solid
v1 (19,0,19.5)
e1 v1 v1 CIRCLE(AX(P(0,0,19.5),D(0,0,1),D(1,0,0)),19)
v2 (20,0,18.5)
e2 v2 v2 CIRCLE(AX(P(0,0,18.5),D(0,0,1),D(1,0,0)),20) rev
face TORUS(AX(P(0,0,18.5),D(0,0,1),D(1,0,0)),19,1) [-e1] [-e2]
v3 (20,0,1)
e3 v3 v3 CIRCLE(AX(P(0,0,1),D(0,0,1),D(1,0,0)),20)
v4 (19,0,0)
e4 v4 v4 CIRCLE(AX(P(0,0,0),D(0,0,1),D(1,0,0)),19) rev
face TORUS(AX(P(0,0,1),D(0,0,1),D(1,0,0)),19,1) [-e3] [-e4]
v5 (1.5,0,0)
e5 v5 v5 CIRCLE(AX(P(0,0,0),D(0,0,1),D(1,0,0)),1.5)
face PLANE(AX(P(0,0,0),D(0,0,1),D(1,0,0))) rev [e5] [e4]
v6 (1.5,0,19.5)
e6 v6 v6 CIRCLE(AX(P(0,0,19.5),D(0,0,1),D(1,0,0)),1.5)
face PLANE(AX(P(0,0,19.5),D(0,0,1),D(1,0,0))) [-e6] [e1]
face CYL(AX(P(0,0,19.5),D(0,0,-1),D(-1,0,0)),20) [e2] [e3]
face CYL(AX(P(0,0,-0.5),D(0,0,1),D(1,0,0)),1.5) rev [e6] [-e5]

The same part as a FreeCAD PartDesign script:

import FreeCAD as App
import Part
import Sketcher
from FreeCAD import Vector
Q = App.Units.Quantity


def edges_at(feature, points):
    """Names of the edges that pass closest to the given points."""
    edges = feature.Shape.Edges
    near = lambda p: min(range(len(edges)), key=lambda i: edges[i].distToShape(Part.Vertex(*p))[0])
    return sorted({f"Edge{near(p) + 1}" for p in points})

doc = App.newDocument("Part")
body = doc.addObject("PartDesign::Body", "Body")

# Sketch on XY plane
sketch1 = doc.addObject("Sketcher::SketchObject", "Sketch")
body.addObject(sketch1)
sketch1.AttachmentSupport = (doc.XY_Plane, [""])
sketch1.MapMode = "FlatFace"
sketch1.addGeometry(Part.Circle(Vector(0, 0, 0), Vector(0, 0, 1), 20), False)
sketch1.addConstraint([
    Sketcher.Constraint("Coincident", 0, 3, -1, 1),
    Sketcher.Constraint("Diameter", 0, Q("40 mm")),
])
pad1 = doc.addObject("PartDesign::Pad", "Pad")
body.addObject(pad1)
pad1.Profile = sketch1
pad1.Length = 19.5
doc.recompute()

fillet = doc.addObject("PartDesign::Fillet", "Fillet")
body.addObject(fillet)
fillet.Base = (pad1, edges_at(pad1, [(-20, 0, 0), (-20, 0, 19.5)]))
fillet.Radius = 1

# Sketch on XY plane
sketch2 = doc.addObject("Sketcher::SketchObject", "Sketch001")
body.addObject(sketch2)
sketch2.AttachmentSupport = (doc.XY_Plane, [""])
sketch2.MapMode = "FlatFace"
sketch2.AttachmentOffset = App.Placement(Vector(0, 0, 19.5), App.Rotation())
sketch2.addGeometry(Part.Circle(Vector(0, 0, 0), Vector(0, 0, 1), 1.5), False)
sketch2.addConstraint([
    Sketcher.Constraint("Coincident", 0, 3, -1, 1),
    Sketcher.Constraint("Diameter", 0, Q("3 mm")),
])
pocket1 = doc.addObject("PartDesign::Pocket", "Pocket")
body.addObject(pocket1)
pocket1.Profile = sketch2
pocket1.Length = 20

doc.recompute()
